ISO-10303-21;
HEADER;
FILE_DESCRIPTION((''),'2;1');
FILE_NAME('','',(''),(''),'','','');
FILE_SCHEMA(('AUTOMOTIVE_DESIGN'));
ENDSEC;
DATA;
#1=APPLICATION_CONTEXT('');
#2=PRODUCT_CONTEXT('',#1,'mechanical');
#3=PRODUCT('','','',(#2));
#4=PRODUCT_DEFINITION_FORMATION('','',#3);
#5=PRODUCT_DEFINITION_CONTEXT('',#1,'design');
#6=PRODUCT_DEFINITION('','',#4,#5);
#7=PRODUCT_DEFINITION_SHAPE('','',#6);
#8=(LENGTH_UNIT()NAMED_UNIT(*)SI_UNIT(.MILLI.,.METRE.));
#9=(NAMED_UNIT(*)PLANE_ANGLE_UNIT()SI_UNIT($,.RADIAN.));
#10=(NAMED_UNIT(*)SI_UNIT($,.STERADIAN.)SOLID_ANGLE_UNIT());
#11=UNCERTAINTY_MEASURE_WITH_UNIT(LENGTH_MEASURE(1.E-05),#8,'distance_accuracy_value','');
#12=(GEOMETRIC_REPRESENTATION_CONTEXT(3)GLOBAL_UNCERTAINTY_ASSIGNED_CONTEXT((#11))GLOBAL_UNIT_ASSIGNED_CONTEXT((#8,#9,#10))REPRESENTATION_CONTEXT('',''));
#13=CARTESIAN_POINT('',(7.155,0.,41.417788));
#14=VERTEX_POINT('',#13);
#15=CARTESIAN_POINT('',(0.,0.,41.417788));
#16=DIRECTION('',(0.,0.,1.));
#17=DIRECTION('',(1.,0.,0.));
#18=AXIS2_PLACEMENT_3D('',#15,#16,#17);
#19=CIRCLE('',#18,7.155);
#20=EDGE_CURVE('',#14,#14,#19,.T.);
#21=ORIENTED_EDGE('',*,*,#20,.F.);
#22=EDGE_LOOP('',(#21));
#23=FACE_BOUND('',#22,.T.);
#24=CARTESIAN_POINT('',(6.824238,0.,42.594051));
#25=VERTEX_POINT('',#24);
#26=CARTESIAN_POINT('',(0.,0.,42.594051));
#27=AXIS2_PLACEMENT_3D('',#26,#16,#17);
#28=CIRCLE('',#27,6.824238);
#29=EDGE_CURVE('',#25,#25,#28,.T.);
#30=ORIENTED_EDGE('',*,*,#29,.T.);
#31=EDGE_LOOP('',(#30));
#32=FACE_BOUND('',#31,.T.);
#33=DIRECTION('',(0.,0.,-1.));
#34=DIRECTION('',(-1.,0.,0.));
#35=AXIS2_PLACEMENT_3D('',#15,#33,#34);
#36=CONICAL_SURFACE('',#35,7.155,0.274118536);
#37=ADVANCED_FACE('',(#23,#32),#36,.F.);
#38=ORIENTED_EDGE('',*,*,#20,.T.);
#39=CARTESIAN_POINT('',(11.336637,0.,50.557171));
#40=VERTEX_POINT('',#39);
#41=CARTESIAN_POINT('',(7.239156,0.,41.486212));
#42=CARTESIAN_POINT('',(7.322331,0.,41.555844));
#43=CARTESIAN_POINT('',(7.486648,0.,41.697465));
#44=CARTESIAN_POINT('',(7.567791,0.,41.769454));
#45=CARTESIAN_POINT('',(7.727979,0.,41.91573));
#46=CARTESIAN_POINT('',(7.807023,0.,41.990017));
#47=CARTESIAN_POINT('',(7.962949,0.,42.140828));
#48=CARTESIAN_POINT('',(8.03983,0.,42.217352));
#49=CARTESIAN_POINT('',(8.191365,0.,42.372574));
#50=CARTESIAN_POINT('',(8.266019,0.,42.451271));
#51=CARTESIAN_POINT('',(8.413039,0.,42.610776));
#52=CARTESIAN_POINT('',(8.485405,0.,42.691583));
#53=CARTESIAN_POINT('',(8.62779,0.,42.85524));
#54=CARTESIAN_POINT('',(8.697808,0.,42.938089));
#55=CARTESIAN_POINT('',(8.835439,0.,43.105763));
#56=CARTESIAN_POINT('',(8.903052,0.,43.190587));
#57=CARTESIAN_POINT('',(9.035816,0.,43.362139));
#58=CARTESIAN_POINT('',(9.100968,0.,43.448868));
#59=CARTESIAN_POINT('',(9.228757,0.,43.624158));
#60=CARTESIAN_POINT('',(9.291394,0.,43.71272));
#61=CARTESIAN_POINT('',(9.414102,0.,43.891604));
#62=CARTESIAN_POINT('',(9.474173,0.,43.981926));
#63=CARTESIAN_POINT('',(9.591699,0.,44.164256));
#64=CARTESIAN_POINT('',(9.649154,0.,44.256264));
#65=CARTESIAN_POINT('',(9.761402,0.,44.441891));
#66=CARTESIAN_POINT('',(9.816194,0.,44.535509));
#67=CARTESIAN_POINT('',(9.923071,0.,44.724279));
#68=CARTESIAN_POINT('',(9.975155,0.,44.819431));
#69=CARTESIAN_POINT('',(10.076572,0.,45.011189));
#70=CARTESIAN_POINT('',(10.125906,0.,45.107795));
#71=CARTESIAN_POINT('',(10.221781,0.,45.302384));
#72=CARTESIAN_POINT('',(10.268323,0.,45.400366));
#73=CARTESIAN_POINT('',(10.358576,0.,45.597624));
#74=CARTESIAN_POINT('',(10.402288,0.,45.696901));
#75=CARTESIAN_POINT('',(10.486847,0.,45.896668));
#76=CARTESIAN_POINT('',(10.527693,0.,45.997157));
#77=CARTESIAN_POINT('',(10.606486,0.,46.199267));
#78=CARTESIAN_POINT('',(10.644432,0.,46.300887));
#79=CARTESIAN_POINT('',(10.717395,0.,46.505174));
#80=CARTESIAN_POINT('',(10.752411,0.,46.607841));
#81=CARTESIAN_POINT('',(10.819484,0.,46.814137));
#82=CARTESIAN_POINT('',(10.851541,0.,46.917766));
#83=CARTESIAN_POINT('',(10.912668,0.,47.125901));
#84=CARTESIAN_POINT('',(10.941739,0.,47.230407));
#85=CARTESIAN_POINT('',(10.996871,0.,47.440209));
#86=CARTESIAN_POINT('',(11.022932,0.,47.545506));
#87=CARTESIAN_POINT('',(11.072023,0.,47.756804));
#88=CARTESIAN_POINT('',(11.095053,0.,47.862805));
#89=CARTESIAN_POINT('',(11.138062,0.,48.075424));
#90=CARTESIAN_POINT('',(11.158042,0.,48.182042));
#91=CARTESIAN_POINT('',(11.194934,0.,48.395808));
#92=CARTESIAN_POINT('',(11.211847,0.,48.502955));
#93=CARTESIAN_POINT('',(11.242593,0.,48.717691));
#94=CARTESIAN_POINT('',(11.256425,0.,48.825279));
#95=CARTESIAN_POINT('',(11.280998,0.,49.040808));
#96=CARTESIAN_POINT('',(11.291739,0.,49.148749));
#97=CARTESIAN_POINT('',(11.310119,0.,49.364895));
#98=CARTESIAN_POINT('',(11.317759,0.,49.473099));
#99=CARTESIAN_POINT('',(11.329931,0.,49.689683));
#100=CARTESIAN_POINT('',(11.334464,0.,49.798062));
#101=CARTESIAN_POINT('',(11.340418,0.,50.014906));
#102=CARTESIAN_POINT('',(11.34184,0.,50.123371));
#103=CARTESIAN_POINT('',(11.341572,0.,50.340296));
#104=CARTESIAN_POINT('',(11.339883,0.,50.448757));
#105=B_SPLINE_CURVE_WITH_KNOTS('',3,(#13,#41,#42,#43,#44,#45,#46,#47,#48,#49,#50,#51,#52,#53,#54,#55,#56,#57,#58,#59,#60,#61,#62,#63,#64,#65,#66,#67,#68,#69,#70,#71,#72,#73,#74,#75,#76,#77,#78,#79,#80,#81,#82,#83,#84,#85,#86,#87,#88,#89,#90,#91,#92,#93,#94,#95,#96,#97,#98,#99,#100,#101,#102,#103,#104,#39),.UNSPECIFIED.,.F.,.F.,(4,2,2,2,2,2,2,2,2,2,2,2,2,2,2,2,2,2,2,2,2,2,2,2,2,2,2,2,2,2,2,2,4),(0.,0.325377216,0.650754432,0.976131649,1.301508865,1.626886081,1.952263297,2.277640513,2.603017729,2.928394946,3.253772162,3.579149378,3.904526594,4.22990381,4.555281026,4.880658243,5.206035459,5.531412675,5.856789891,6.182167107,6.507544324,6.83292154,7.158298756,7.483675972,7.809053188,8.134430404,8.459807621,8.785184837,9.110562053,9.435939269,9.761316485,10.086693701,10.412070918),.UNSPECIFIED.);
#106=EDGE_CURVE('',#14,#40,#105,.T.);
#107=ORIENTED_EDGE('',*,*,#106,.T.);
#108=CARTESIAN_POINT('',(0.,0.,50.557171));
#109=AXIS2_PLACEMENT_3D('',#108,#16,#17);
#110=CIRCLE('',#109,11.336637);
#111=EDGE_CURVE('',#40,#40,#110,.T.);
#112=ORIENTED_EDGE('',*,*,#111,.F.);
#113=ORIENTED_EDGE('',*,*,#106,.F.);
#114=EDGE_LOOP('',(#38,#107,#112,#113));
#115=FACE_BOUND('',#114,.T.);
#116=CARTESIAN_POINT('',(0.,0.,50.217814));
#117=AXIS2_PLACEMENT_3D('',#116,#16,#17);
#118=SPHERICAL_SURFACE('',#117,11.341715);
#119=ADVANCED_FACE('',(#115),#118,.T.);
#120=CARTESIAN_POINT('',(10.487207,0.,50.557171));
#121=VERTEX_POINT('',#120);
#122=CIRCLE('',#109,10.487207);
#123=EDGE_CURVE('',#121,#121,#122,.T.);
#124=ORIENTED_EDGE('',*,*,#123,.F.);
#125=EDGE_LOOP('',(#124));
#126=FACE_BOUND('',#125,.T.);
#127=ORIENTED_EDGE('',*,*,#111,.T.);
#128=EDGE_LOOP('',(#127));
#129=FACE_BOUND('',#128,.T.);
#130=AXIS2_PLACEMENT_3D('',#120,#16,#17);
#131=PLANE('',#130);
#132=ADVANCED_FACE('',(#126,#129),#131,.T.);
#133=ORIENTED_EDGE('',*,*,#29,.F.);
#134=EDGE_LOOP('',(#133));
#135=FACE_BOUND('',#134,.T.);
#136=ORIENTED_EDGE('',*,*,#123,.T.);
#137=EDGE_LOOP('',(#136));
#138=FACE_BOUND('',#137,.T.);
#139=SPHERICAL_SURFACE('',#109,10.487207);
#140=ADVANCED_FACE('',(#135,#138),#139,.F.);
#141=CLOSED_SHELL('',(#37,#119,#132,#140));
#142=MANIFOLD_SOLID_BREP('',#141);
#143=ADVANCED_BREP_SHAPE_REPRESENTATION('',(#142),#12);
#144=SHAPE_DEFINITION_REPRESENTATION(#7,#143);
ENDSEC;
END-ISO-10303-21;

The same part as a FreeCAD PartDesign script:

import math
import FreeCAD as App
import Part
import Sketcher
Q = App.Units.Quantity

doc = App.newDocument("Part")
params = doc.addObject("Spreadsheet::Sheet", "Params")
for row, (alias, value) in enumerate([
    ("revolution_angle", "360 deg"),
], start=1):
    params.set(f"A{row}", alias)
    params.set(f"B{row}", "=" + value)
    params.setAlias(f"B{row}", alias)

body = doc.addObject("PartDesign::Body", "Body")

# Sketch on XZ plane
sketch1 = body.newObject("Sketcher::SketchObject", "Sketch")
sketch1.AttachmentSupport = (doc.getObject("XZ_Plane"), [""])
sketch1.MapMode = "FlatFace"
sketch1.addGeometry([
    Part.LineSegment(App.Vector(7.2, 41.4, 0), App.Vector(6.8, 42.6, 0)),
    Part.ArcOfCircle(Part.Circle(App.Vector(0, 50.6, 0), App.Vector(0, 0, 1), 10.5), math.radians(-49), math.radians(0)),
    Part.LineSegment(App.Vector(10.5, 50.6, 0), App.Vector(11.3, 50.6, 0)),
    Part.ArcOfCircle(Part.Circle(App.Vector(0, 50.2, 0), App.Vector(0, 0, 1), 11.3), math.radians(-51), math.radians(2)),
], False)
sketch1.addConstraint([
    Sketcher.Constraint("Coincident", 0, 2, 1, 1),
    Sketcher.Constraint("Coincident", 1, 2, 2, 1),
    Sketcher.Constraint("Coincident", 2, 2, 3, 2),
    Sketcher.Constraint("Coincident", 3, 1, 0, 1),
    Sketcher.Constraint("Horizontal", 2),
    Sketcher.Constraint("PointOnObject", 1, 3, -2),
    Sketcher.Constraint("PointOnObject", 3, 3, -2),
    Sketcher.Constraint("DistanceX", -1, 1, 3, 1, Q("7.155 mm")),
    Sketcher.Constraint("Radius", 1, Q("10.487207 mm")),
    Sketcher.Constraint("Radius", 3, Q("11.341715 mm")),
    Sketcher.Constraint("DistanceX", 2, 1, 2, 2, Q("0.84943 mm")),
    Sketcher.Constraint("DistanceX", 0, 2, 2, 2, Q("4.512399 mm")),
    Sketcher.Constraint("DistanceY", -1, 1, 1, 3, Q("50.557171 mm")),
    Sketcher.Constraint("DistanceY", -1, 1, 1, 2, Q("50.557171 mm")),
])
revolution = body.newObject("PartDesign::Revolution", "Revolution")
revolution.Profile = sketch1
revolution.ReferenceAxis = (sketch1, ["V_Axis"])
revolution.setExpression("Angle", "Params.revolution_angle")

doc.recompute()
